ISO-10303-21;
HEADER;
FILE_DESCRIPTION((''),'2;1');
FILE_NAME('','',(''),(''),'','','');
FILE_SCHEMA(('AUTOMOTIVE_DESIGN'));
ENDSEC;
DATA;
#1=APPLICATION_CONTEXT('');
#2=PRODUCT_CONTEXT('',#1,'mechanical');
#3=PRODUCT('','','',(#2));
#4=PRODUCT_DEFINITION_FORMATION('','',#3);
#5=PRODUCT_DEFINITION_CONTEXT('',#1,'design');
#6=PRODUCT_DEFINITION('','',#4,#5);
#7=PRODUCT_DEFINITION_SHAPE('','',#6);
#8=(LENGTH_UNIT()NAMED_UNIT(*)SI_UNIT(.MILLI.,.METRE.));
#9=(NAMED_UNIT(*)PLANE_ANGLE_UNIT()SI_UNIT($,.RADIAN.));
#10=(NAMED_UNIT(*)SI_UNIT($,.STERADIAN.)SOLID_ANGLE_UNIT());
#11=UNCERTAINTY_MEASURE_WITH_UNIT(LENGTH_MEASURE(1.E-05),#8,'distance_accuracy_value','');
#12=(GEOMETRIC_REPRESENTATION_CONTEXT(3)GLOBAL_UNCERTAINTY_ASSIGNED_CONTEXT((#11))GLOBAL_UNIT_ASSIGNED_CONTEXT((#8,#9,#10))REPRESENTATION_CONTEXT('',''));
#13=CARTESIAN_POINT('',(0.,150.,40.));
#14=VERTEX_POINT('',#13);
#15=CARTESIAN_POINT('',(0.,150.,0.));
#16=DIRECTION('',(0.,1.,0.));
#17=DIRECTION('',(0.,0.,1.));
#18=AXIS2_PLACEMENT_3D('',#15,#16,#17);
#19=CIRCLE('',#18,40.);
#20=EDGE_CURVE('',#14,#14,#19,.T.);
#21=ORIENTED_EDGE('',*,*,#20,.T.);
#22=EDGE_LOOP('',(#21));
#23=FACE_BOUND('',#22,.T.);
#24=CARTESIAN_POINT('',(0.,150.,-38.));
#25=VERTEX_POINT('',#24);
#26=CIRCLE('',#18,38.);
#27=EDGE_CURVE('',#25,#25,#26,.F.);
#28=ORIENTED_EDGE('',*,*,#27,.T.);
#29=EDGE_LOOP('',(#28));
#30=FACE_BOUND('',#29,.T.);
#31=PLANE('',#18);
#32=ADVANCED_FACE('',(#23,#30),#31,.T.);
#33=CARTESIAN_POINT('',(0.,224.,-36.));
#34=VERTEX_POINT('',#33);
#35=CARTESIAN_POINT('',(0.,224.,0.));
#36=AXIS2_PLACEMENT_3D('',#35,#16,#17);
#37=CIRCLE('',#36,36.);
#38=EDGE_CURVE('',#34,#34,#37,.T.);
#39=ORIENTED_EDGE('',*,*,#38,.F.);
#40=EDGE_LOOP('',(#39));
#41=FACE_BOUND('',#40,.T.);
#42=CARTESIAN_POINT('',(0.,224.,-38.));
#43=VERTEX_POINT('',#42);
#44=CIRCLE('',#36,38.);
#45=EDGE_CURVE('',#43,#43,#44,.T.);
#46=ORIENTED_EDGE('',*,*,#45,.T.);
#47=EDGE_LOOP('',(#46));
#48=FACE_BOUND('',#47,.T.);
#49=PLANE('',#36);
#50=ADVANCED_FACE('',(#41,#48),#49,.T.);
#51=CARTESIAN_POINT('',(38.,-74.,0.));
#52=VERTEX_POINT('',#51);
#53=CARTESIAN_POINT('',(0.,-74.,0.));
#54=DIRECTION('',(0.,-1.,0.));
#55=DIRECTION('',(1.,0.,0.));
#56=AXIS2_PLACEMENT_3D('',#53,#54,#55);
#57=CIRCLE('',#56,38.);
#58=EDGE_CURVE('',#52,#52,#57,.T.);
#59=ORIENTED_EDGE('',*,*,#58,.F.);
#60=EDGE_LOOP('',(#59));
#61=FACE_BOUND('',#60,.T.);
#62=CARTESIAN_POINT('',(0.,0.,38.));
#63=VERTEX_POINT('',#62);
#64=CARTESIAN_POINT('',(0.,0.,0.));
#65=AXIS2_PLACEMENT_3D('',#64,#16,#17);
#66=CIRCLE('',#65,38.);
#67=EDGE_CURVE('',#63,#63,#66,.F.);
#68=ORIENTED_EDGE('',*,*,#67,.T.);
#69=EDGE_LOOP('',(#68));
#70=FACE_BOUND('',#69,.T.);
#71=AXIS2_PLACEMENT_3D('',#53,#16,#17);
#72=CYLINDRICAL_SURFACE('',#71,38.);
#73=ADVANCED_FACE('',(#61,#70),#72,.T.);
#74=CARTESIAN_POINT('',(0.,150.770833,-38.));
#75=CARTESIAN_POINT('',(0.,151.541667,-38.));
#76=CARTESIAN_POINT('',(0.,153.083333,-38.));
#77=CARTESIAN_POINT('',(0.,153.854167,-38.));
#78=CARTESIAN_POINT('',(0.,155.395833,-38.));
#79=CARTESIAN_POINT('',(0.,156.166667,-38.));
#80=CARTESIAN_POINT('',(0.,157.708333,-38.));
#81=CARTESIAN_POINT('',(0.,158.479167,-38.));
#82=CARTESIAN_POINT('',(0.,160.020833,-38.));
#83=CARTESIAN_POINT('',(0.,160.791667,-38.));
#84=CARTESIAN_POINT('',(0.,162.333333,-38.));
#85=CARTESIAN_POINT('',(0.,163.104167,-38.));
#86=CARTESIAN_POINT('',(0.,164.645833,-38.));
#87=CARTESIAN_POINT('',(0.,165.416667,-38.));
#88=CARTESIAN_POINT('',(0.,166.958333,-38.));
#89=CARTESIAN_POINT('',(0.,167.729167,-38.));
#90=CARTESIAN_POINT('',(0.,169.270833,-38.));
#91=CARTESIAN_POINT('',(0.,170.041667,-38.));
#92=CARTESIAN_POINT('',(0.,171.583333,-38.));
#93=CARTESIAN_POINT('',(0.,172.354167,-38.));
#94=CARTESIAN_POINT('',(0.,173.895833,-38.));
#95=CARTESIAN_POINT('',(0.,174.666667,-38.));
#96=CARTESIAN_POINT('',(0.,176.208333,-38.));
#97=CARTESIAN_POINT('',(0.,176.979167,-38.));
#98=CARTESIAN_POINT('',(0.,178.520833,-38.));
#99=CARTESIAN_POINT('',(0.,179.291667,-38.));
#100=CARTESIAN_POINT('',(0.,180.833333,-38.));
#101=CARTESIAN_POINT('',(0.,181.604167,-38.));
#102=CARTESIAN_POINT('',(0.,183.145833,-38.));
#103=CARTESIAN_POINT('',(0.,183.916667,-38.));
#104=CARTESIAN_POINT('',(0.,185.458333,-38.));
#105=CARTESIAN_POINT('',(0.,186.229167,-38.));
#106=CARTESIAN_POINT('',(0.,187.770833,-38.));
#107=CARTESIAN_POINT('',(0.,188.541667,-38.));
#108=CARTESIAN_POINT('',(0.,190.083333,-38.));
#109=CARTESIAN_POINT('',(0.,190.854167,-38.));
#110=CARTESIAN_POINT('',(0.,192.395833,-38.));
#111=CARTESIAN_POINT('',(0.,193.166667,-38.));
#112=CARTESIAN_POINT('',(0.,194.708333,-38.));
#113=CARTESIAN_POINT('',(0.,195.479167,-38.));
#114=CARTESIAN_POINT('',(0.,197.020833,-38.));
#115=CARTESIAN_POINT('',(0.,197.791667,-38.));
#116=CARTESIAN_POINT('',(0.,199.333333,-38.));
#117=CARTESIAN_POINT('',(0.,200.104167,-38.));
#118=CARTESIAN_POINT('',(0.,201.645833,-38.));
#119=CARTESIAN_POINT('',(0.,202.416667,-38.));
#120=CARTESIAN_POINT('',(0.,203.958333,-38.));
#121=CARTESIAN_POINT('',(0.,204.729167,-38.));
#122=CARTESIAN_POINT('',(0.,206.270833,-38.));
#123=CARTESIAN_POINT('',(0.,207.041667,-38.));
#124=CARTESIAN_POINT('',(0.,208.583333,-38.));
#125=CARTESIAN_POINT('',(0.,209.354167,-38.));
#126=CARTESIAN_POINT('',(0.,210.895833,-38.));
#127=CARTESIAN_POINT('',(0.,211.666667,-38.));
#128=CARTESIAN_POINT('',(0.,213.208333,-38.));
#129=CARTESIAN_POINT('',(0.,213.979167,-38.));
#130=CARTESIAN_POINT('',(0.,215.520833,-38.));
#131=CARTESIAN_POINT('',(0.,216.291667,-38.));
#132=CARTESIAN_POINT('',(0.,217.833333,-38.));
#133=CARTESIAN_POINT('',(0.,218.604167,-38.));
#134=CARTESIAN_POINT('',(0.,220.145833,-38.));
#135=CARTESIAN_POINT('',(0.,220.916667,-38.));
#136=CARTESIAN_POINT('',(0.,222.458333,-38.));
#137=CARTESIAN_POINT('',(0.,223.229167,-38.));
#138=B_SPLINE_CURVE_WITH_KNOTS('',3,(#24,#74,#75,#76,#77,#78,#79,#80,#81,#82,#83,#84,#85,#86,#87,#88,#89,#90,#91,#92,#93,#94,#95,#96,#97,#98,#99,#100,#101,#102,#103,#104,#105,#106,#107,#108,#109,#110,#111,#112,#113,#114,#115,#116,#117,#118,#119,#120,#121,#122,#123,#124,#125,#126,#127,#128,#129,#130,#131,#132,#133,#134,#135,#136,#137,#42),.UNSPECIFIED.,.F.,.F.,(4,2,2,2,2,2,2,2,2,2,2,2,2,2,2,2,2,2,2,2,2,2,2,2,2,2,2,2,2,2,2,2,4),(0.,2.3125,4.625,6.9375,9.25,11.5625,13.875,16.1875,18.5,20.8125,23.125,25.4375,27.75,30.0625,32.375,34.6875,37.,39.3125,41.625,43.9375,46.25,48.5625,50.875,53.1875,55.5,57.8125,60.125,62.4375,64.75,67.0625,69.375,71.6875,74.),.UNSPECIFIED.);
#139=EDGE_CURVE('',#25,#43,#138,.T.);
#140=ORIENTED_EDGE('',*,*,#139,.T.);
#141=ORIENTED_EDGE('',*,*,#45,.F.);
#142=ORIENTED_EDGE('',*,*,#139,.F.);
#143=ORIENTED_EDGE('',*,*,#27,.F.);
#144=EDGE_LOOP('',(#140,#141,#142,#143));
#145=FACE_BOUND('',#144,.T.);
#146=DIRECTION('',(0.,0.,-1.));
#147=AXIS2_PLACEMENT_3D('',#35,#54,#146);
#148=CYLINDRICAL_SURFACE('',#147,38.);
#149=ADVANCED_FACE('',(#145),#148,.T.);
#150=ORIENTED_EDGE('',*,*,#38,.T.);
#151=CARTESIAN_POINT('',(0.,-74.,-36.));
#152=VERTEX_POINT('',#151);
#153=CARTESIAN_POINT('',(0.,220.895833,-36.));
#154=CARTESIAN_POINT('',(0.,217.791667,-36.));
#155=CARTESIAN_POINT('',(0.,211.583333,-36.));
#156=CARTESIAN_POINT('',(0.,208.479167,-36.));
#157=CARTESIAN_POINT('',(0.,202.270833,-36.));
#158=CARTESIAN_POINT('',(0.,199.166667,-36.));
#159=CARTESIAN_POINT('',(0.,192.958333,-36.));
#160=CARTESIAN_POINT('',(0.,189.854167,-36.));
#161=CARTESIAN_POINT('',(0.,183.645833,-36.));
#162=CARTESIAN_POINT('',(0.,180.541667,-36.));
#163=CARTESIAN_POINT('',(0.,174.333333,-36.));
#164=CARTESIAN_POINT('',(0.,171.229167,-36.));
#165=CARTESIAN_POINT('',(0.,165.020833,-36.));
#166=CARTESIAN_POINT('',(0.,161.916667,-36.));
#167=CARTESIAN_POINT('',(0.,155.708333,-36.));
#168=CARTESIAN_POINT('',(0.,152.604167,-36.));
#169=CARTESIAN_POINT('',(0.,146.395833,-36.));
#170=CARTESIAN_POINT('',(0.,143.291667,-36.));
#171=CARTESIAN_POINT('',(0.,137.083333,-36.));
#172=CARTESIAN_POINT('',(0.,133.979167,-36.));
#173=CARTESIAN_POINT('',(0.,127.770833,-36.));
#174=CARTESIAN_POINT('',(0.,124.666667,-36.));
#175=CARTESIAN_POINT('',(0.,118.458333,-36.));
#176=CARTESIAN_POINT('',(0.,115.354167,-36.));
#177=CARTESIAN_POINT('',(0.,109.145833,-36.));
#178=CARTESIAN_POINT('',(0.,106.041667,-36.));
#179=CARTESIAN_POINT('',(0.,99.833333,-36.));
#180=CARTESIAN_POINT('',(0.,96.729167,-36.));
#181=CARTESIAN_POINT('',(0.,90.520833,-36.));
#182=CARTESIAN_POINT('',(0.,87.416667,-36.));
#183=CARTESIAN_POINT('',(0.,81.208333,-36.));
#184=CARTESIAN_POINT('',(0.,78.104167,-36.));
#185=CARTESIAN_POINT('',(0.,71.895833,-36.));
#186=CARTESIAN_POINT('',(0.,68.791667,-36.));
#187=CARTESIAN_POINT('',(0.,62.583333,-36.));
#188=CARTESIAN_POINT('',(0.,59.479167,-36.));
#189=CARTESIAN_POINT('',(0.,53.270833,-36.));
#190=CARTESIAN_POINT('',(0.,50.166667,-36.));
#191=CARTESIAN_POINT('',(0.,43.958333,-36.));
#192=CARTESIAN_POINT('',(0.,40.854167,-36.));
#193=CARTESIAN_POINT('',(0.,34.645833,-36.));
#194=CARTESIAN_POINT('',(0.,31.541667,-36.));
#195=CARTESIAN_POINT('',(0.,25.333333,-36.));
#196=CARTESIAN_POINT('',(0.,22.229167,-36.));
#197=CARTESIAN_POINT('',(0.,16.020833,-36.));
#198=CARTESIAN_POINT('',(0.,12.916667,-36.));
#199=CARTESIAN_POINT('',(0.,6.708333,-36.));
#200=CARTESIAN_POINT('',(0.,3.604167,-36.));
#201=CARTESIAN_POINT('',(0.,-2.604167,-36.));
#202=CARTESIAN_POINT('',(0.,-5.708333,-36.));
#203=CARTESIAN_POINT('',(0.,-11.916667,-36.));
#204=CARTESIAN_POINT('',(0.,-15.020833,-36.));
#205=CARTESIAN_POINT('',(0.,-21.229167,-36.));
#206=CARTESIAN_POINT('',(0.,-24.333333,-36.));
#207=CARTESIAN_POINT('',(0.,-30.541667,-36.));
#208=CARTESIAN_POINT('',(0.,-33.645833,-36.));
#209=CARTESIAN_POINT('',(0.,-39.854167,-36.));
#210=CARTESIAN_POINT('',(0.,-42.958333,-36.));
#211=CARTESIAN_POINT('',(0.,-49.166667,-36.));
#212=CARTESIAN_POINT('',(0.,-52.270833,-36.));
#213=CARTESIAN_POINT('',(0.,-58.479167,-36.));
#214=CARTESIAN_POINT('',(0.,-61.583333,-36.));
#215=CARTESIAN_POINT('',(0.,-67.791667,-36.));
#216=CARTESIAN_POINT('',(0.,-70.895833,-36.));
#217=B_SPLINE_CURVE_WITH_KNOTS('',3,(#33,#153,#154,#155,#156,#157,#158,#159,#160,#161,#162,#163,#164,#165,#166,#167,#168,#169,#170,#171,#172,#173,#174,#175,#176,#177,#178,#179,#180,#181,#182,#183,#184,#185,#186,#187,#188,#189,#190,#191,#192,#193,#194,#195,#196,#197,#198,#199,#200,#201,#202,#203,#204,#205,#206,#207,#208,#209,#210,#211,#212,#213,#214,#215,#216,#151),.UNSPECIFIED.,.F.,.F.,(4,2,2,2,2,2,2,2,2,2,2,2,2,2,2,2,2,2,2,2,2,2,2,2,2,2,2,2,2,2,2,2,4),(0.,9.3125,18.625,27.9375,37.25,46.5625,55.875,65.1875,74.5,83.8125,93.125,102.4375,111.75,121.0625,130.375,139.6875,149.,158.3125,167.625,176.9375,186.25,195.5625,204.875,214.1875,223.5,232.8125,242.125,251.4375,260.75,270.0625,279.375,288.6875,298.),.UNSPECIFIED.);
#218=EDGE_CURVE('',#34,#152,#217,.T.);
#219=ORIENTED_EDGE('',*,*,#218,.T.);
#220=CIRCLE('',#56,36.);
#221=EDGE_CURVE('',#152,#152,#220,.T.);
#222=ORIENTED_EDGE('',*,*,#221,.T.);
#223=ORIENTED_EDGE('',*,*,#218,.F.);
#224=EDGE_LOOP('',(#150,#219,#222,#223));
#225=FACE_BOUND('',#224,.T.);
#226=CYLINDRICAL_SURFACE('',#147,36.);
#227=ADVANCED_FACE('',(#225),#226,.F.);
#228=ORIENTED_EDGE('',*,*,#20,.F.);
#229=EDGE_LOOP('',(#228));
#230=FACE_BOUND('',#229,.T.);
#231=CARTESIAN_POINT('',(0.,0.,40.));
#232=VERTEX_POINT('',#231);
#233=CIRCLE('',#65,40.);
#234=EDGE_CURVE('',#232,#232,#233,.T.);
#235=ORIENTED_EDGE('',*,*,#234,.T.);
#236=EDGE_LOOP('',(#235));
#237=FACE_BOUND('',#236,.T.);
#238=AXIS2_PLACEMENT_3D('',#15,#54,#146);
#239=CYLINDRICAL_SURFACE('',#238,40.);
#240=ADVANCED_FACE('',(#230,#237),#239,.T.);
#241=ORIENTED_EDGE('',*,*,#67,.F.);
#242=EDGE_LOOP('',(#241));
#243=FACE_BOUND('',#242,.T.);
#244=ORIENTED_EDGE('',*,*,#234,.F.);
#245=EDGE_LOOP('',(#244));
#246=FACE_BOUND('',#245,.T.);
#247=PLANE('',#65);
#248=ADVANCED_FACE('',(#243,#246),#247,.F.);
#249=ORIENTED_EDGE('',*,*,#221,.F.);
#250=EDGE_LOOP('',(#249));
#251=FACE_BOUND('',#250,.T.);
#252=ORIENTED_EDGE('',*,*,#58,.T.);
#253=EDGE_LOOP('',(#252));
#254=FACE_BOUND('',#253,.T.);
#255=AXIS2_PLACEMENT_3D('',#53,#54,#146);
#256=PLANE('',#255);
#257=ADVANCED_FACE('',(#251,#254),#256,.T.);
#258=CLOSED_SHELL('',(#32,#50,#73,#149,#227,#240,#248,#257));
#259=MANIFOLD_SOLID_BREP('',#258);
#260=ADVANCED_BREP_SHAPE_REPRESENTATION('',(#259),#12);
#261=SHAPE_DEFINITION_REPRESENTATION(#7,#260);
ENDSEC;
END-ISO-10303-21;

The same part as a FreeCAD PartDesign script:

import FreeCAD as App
import Part
import Sketcher
from FreeCAD import Vector
Q = App.Units.Quantity

doc = App.newDocument("Part")
body = doc.addObject("PartDesign::Body", "Body")

# Sketch on XZ plane
sketch1 = body.newObject("Sketcher::SketchObject", "Sketch")
sketch1.AttachmentSupport = (doc.getObject("XZ_Plane"), [""])
sketch1.MapMode = "FlatFace"
sketch1.addGeometry(Part.Circle(Vector(0, 0, 0), Vector(0, 0, 1), 40), False)
sketch1.addGeometry(Part.Circle(Vector(0, 0, 0), Vector(0, 0, 1), 37), False)
sketch1.addConstraint(Sketcher.Constraint("Coincident", 0, 3, -1, 1))
sketch1.addConstraint(Sketcher.Constraint("Coincident", 1, 3, -1, 1))
sketch1.addConstraint(Sketcher.Constraint("Diameter", 0, Q("80 mm")))
sketch1.addConstraint(Sketcher.Constraint("Diameter", 1, Q("74 mm")))
pad1 = body.newObject("PartDesign::Pad", "Pad")
pad1.Profile = sketch1
pad1.Length = 150
pad1.Reversed = True
body2 = doc.addObject("PartDesign::Body", "Body001")

# Sketch on XZ plane
sketch2 = body2.newObject("Sketcher::SketchObject", "Sketch001")
sketch2.AttachmentSupport = (doc.getObject("XZ_Plane001"), [""])
sketch2.MapMode = "FlatFace"
sketch2.addGeometry(Part.Circle(Vector(0, 0, 0), Vector(0, 0, 1), 38), False)
sketch2.addGeometry(Part.Circle(Vector(0, 0, 0), Vector(0, 0, 1), 36), False)
sketch2.addConstraint(Sketcher.Constraint("Coincident", 0, 3, -1, 1))
sketch2.addConstraint(Sketcher.Constraint("Coincident", 1, 3, -1, 1))
sketch2.addConstraint(Sketcher.Constraint("Diameter", 0, Q("76 mm")))
sketch2.addConstraint(Sketcher.Constraint("Diameter", 1, Q("72 mm")))
pad2 = body2.newObject("PartDesign::Pad", "Pad001")
pad2.Profile = sketch2
pad2.Length = 74
body3 = doc.addObject("PartDesign::Body", "Body002")

# Sketch on XZ plane
sketch3 = body3.newObject("Sketcher::SketchObject", "Sketch002")
sketch3.AttachmentSupport = (doc.getObject("XZ_Plane002"), [""])
sketch3.MapMode = "FlatFace"
sketch3.AttachmentOffset = App.Placement(Vector(0, 0, -150), App.Rotation())
sketch3.addGeometry(Part.Circle(Vector(0, 0, 0), Vector(0, 0, 1), 38), False)
sketch3.addGeometry(Part.Circle(Vector(0, 0, 0), Vector(0, 0, 1), 37), False)
sketch3.addConstraint(Sketcher.Constraint("Coincident", 0, 3, -1, 1))
sketch3.addConstraint(Sketcher.Constraint("Coincident", 1, 3, -1, 1))
sketch3.addConstraint(Sketcher.Constraint("Diameter", 0, Q("76 mm")))
sketch3.addConstraint(Sketcher.Constraint("Diameter", 1, Q("74 mm")))
pad3 = body3.newObject("PartDesign::Pad", "Pad002")
pad3.Profile = sketch3
pad3.Length = 74
pad3.Reversed = True
doc.recompute()

boolean = body.newObject("PartDesign::Boolean", "Boolean")
boolean.Type = "Fuse"
boolean.addObjects([body2])
doc.recompute()

boolean2 = body.newObject("PartDesign::Boolean", "Boolean001")
boolean2.Type = "Fuse"
boolean2.addObjects([body3])

# Sketch on XZ plane
sketch4 = body.newObject("Sketcher::SketchObject", "Sketch003")
sketch4.AttachmentSupport = (doc.getObject("XZ_Plane"), [""])
sketch4.MapMode = "FlatFace"
sketch4.addGeometry(Part.Circle(Vector(0, 0, 0), Vector(0, 0, 1), 38), False)
sketch4.addGeometry(Part.Circle(Vector(0, 0, 0), Vector(0, 0, 1), 36), False)
sketch4.addConstraint(Sketcher.Constraint("Coincident", 0, 3, -1, 1))
sketch4.addConstraint(Sketcher.Constraint("Coincident", 1, 3, -1, 1))
sketch4.addConstraint(Sketcher.Constraint("Diameter", 0, Q("76 mm")))
sketch4.addConstraint(Sketcher.Constraint("Diameter", 1, Q("72 mm")))
pad4 = body.newObject("PartDesign::Pad", "Pad003")
pad4.Profile = sketch4
pad4.Length = 224
pad4.Reversed = True

doc.recompute()
